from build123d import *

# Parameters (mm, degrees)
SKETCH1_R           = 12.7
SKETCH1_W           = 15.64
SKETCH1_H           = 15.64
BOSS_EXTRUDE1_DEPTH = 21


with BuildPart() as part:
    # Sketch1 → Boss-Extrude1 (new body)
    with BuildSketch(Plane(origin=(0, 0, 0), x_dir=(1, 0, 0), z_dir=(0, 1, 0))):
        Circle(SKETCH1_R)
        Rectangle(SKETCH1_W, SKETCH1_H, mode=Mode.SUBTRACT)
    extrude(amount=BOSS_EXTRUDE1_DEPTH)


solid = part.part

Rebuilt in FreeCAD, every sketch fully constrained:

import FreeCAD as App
import Part
import Sketcher

doc = App.newDocument("Part")
body = doc.addObject("PartDesign::Body", "Body")

sketch1 = doc.addObject("Sketcher::SketchObject", "Sketch")
body.addObject(sketch1)
sketch1.AttachmentSupport = (doc.XZ_Plane, [""])
sketch1.MapMode = "FlatFace"
sketch1.addGeometry(Part.Circle(App.Vector(0, 0, 0), App.Vector(0, 0, 1), 13), False)
sketch1.addGeometry(Part.LineSegment(App.Vector(8, 8, 0), App.Vector(-8, 8, 0)), False)
sketch1.addGeometry(Part.LineSegment(App.Vector(-8, 8, 0), App.Vector(-8, -8, 0)), False)
sketch1.addGeometry(Part.LineSegment(App.Vector(-8, -8, 0), App.Vector(8, -8, 0)), False)
sketch1.addGeometry(Part.LineSegment(App.Vector(8, -8, 0), App.Vector(8, 8, 0)), False)
sketch1.addConstraint(Sketcher.Constraint("Coincident", 1, 2, 2, 1))
sketch1.addConstraint(Sketcher.Constraint("Coincident", 2, 2, 3, 1))
sketch1.addConstraint(Sketcher.Constraint("Coincident", 3, 2, 4, 1))
sketch1.addConstraint(Sketcher.Constraint("Coincident", 4, 2, 1, 1))
sketch1.addConstraint(Sketcher.Constraint("Horizontal", 1))
sketch1.addConstraint(Sketcher.Constraint("Vertical", 2))
sketch1.addConstraint(Sketcher.Constraint("Horizontal", 3))
sketch1.addConstraint(Sketcher.Constraint("Vertical", 4))
sketch1.addConstraint(Sketcher.Constraint("Coincident", 0, 3, -1, 1))
sketch1.addConstraint(Sketcher.Constraint("Symmetric", 1, 2, 3, 2, -1, 1))
sketch1.addConstraint(Sketcher.Constraint("Equal", 3, 2))
sketch1.addConstraint(Sketcher.Constraint("Diameter", 0, 25.4))
sketch1.addConstraint(Sketcher.Constraint("DistanceX", 1, 2, 1, 1, 15.64))
pad1 = doc.addObject("PartDesign::Pad", "Pad")
body.addObject(pad1)
pad1.Profile = sketch1
pad1.Length = 21
pad1.Reversed = True

doc.recompute()
